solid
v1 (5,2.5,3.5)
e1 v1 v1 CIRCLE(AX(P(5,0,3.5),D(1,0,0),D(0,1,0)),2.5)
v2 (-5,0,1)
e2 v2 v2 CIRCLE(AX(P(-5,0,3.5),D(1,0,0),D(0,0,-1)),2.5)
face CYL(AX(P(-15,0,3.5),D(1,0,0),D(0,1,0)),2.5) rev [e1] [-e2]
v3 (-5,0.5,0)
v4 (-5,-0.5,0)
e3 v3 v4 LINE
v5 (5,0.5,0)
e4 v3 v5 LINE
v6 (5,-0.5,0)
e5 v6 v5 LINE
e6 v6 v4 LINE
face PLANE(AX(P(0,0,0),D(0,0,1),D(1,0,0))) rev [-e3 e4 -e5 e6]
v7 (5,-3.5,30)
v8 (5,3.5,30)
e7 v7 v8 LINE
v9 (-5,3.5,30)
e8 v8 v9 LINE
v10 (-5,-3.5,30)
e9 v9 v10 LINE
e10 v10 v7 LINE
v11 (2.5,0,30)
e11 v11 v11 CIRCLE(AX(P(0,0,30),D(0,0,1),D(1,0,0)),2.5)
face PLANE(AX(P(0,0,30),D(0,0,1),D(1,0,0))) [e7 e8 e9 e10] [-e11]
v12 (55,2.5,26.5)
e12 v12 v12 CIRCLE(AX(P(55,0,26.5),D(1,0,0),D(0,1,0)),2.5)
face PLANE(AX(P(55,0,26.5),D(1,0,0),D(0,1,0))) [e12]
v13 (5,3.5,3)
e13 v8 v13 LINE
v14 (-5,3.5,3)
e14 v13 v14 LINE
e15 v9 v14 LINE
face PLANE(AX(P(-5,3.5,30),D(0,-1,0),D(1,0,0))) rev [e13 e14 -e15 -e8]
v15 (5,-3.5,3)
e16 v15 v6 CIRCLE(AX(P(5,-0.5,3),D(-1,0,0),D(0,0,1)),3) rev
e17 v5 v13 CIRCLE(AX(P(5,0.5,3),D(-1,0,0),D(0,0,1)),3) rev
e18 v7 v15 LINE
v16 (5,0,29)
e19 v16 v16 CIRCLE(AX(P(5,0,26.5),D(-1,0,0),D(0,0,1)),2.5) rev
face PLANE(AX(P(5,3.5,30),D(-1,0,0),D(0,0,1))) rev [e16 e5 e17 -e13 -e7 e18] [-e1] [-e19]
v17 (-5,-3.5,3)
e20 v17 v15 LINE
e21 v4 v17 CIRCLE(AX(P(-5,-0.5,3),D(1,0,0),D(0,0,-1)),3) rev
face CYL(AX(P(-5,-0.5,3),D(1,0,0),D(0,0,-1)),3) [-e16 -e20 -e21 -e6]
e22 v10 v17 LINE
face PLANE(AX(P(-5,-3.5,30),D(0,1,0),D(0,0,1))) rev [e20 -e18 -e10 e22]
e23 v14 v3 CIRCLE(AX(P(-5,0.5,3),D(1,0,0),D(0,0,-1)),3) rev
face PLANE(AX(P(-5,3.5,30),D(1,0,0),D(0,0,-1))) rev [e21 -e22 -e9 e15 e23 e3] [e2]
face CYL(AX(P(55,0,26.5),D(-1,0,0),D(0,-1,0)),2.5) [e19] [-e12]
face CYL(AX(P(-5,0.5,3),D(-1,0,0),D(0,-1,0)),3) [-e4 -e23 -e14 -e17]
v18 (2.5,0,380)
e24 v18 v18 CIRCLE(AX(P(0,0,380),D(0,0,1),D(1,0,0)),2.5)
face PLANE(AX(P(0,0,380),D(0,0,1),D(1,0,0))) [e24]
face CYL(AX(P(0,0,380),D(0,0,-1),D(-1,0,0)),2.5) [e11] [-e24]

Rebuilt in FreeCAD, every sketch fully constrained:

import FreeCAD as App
import Part
import Sketcher


def edges_at(feature, points):
    """Names of the edges that pass closest to the given points."""
    edges = feature.Shape.Edges
    near = lambda p: min(range(len(edges)), key=lambda i: edges[i].distToShape(Part.Vertex(*p))[0])
    return sorted({f"Edge{near(p) + 1}" for p in points})


def add_polygon(sketch, points):
    """Adds a closed chain of lines whose ends are joined by coincident constraints."""
    first, n = sketch.GeometryCount, len(points)
    for a, b in zip(points, points[1:] + points[:1]):
        sketch.addGeometry(Part.LineSegment(App.Vector(*a, 0), App.Vector(*b, 0)), False)
    for i in range(n):
        sketch.addConstraint(Sketcher.Constraint("Coincident", first + i, 2, first + (i + 1) % n, 1))

doc = App.newDocument("Part")
body = doc.addObject("PartDesign::Body", "Body")

# Sketch on XY plane
sketch1 = doc.addObject("Sketcher::SketchObject", "Sketch")
body.addObject(sketch1)
sketch1.AttachmentSupport = (doc.XY_Plane, [""])
sketch1.MapMode = "FlatFace"
add_polygon(sketch1, [(-5, 4), (-5, -4), (5, -4), (5, 4)])  # lines 0-3
sketch1.addConstraint([
    Sketcher.Constraint("Vertical", 0),
    Sketcher.Constraint("Horizontal", 1),
    Sketcher.Constraint("Vertical", 2),
    Sketcher.Constraint("Horizontal", 3),
    Sketcher.Constraint("Symmetric", 0, 2, 2, 2, -1, 1),
    Sketcher.Constraint("DistanceX", 1, 1, 1, 2, 10.0),
    Sketcher.Constraint("DistanceY", 0, 2, 0, 1, 7.0),
])
pad1 = doc.addObject("PartDesign::Pad", "Pad")
body.addObject(pad1)
pad1.Profile = sketch1
pad1.Length = 30

# Sketch on YZ plane
sketch2 = doc.addObject("Sketcher::SketchObject", "Sketch001")
body.addObject(sketch2)
sketch2.AttachmentSupport = (doc.YZ_Plane, [""])
sketch2.MapMode = "FlatFace"
sketch2.AttachmentOffset = App.Placement(App.Vector(0, 0, 5), App.Rotation())
sketch2.addGeometry(Part.Circle(App.Vector(0, 3.5, 0), App.Vector(0, 0, 1), 2.5), False)
sketch2.addConstraint([
    Sketcher.Constraint("PointOnObject", 0, 3, -2),
    Sketcher.Constraint("Diameter", 0, 5.0),
    Sketcher.Constraint("DistanceY", -1, 1, 0, 3, 3.5),
])
pocket1 = doc.addObject("PartDesign::Pocket", "Pocket")
body.addObject(pocket1)
pocket1.Profile = sketch2
pocket1.Length = 20

# Sketch on YZ plane
sketch3 = doc.addObject("Sketcher::SketchObject", "Sketch002")
body.addObject(sketch3)
sketch3.AttachmentSupport = (doc.YZ_Plane, [""])
sketch3.MapMode = "FlatFace"
sketch3.AttachmentOffset = App.Placement(App.Vector(0, 0, 5), App.Rotation())
sketch3.addGeometry(Part.Circle(App.Vector(0, 26.5, 0), App.Vector(0, 0, 1), 2.5), False)
sketch3.addConstraint([
    Sketcher.Constraint("PointOnObject", 0, 3, -2),
    Sketcher.Constraint("Diameter", 0, 5.0),
    Sketcher.Constraint("DistanceY", -1, 1, 0, 3, 26.5),
])
pad2 = doc.addObject("PartDesign::Pad", "Pad001")
body.addObject(pad2)
pad2.Profile = sketch3
pad2.Length = 50
doc.recompute()

fillet = doc.addObject("PartDesign::Fillet", "Fillet")
body.addObject(fillet)
fillet.Base = (pad2, edges_at(pad2, [(0, -3.5, 0), (0, 3.5, 0)]))
fillet.Radius = 3

# Sketch on XY plane
sketch4 = doc.addObject("Sketcher::SketchObject", "Sketch003")
body.addObject(sketch4)
sketch4.AttachmentSupport = (doc.XY_Plane, [""])
sketch4.MapMode = "FlatFace"
sketch4.AttachmentOffset = App.Placement(App.Vector(0, 0, 30), App.Rotation())
sketch4.addGeometry(Part.Circle(App.Vector(0, 0, 0), App.Vector(0, 0, 1), 2.5), False)
sketch4.addConstraint([
    Sketcher.Constraint("Coincident", 0, 3, -1, 1),
    Sketcher.Constraint("Diameter", 0, 5.0),
])
pad3 = doc.addObject("PartDesign::Pad", "Pad002")
body.addObject(pad3)
pad3.Profile = sketch4
pad3.Length = 350

doc.recompute()
